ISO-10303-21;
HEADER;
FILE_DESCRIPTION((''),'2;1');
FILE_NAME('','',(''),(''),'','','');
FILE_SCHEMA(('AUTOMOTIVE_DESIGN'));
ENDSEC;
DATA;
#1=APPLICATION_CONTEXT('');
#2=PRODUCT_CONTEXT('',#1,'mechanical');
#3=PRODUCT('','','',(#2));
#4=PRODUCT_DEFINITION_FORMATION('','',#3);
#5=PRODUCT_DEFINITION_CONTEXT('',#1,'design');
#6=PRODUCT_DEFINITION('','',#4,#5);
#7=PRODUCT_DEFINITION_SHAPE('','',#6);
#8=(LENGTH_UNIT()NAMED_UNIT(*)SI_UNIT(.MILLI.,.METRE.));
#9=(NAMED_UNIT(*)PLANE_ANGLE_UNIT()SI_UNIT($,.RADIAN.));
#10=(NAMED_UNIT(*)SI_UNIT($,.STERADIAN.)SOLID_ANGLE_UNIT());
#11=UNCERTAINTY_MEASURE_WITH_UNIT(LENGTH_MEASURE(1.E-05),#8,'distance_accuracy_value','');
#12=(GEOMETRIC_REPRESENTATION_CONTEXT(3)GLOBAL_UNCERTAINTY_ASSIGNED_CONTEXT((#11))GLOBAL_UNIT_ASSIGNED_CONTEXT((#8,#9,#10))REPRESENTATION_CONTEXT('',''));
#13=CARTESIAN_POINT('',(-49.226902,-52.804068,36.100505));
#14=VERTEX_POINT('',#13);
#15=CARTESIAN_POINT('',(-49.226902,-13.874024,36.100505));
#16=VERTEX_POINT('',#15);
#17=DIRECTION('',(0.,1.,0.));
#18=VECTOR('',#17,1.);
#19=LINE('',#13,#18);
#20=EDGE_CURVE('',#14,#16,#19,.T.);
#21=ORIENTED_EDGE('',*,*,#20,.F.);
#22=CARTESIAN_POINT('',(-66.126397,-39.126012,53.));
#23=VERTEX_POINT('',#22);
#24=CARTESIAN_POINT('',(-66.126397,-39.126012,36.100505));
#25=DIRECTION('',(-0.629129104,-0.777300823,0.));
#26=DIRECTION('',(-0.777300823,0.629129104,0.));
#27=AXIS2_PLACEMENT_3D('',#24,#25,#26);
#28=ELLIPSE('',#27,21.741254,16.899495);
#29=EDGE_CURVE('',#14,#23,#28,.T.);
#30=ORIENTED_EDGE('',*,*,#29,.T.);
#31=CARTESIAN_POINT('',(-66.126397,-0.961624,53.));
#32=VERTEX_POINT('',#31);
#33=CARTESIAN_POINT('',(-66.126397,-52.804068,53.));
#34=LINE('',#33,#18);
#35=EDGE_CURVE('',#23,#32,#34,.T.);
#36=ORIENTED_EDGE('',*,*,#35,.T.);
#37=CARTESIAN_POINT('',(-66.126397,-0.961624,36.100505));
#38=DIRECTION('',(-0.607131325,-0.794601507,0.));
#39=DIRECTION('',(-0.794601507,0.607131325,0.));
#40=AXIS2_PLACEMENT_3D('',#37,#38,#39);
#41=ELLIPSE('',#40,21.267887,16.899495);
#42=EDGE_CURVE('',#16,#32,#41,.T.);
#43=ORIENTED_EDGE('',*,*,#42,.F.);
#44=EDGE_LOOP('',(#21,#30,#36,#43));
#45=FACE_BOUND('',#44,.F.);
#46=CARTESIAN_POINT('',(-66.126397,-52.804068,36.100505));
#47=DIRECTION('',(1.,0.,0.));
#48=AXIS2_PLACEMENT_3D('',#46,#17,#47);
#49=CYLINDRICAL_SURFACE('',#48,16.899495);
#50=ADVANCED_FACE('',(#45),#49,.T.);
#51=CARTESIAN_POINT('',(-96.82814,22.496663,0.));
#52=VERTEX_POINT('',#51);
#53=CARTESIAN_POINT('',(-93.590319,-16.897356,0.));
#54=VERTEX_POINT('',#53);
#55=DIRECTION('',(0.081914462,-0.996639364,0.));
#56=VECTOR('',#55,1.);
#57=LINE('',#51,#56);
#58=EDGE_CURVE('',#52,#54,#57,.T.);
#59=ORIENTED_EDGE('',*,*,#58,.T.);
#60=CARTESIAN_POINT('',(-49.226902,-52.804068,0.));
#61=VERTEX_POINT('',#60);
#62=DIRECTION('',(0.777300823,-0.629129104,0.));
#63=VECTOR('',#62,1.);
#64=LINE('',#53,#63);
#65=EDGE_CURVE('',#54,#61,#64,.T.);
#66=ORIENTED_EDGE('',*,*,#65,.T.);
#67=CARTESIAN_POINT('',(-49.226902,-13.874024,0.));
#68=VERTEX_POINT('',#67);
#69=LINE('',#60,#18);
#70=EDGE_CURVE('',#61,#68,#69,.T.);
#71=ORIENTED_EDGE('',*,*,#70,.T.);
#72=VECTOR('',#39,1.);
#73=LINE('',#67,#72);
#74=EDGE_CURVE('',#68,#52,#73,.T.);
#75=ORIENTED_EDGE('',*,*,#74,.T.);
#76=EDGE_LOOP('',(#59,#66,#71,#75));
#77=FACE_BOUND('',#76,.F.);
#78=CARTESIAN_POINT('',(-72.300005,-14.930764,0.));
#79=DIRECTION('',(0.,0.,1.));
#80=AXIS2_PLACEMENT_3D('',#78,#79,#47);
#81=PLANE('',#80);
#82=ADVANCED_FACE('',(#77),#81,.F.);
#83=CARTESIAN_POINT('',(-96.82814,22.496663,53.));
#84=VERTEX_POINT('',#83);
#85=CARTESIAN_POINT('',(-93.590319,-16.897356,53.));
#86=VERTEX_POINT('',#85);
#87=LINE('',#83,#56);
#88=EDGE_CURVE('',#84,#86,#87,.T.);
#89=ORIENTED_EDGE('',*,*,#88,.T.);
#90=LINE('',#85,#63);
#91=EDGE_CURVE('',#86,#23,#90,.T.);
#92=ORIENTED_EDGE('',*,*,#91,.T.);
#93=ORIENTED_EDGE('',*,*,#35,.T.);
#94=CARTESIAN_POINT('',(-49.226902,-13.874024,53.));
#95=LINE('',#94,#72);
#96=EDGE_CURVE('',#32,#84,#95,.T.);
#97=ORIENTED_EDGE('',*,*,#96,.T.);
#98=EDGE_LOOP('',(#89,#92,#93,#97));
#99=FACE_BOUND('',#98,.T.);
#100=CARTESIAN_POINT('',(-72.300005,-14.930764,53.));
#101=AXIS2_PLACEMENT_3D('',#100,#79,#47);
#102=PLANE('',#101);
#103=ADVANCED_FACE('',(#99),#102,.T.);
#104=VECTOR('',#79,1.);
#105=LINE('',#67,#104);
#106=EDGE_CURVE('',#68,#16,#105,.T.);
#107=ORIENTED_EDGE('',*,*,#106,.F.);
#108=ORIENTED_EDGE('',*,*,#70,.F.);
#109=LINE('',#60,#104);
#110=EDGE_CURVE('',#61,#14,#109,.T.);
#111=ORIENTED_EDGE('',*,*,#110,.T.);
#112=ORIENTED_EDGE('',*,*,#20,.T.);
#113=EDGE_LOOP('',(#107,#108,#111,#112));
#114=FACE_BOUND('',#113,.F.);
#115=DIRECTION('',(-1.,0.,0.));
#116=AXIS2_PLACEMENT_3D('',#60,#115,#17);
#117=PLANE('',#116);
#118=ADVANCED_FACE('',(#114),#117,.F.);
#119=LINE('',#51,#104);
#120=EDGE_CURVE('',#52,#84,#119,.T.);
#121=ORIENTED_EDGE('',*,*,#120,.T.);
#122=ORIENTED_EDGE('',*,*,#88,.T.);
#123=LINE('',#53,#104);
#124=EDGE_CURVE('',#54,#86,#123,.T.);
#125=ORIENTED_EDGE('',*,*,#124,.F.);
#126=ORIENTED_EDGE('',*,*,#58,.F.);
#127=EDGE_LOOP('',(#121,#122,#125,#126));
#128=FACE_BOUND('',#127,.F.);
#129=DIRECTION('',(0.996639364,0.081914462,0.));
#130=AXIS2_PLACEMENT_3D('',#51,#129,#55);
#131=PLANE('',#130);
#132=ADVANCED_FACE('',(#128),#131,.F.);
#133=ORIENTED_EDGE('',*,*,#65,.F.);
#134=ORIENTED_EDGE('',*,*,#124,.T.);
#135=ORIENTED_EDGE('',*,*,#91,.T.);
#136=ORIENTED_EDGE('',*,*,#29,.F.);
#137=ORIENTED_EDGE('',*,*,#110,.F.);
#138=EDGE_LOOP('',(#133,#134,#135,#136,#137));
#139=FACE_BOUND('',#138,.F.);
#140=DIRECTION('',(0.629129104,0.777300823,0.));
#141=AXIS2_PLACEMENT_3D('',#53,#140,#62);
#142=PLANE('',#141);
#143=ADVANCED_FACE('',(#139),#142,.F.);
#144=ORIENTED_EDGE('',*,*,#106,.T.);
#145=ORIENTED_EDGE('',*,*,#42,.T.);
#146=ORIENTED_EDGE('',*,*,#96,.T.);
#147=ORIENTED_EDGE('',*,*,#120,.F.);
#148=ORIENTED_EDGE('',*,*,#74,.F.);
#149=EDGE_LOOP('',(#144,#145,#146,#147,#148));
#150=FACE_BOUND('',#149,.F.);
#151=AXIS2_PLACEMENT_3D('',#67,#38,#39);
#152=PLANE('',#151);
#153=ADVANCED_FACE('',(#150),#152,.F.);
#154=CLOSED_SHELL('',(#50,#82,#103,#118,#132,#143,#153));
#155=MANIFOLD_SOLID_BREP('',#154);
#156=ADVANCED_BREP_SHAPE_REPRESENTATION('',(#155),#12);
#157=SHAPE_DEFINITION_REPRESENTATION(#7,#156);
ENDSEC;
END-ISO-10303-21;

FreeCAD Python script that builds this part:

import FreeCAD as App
import Part
import Sketcher

V = App.Vector
Q = App.Units.Quantity


def edges_at(feature, points):
    """Names of the edges that pass closest to the given points."""
    edges = feature.Shape.Edges
    near = lambda p: min(range(len(edges)), key=lambda i: edges[i].distToShape(Part.Vertex(*p))[0])
    return sorted({f"Edge{near(p) + 1}" for p in points})


def add_polygon(sketch, points):
    """Adds a closed chain of lines whose ends are joined by coincident constraints."""
    first, n = sketch.GeometryCount, len(points)
    for a, b in zip(points, points[1:] + points[:1]):
        sketch.addGeometry(Part.LineSegment(App.Vector(*a, 0), App.Vector(*b, 0)), False)
    for i in range(n):
        sketch.addConstraint(Sketcher.Constraint("Coincident", first + i, 2, first + (i + 1) % n, 1))

doc = App.newDocument("Part")
body = doc.addObject("PartDesign::Body", "Body")

# Sketch on XY plane
sketch1 = body.newObject("Sketcher::SketchObject", "Sketch")
sketch1.AttachmentSupport = (doc.getObject("XY_Plane"), [""])
sketch1.MapMode = "FlatFace"
add_polygon(sketch1, [(-96.82814, 22.496663), (-93.590319, -16.897356), (-49.226902, -52.804068), (-49.226902, -13.874024)])  # lines 0-3
sketch1.addConstraint(Sketcher.Constraint("Vertical", 2))
sketch1.addConstraint(Sketcher.Constraint("Distance", 3, Q("59.905799 mm")))
sketch1.addConstraint(Sketcher.Constraint("Distance", 1, Q("57.073678 mm")))
sketch1.addConstraint(Sketcher.Constraint("DistanceY", 2, 1, 2, 2, Q("38.930044 mm")))
sketch1.addConstraint(Sketcher.Constraint("DistanceX", 0, 2, -1, 1, Q("93.590319 mm")))
sketch1.addConstraint(Sketcher.Constraint("DistanceX", 3, 2, -1, 1, Q("96.82814 mm")))
sketch1.addConstraint(Sketcher.Constraint("DistanceY", 0, 2, 2, 2, Q("3.023332 mm")))
sketch1.addConstraint(Sketcher.Constraint("DistanceY", 0, 2, -1, 1, Q("16.897356 mm")))
pad1 = body.newObject("PartDesign::Pad", "Pad")
pad1.Profile = sketch1
pad1.Length = 53
doc.recompute()

fillet = body.newObject("PartDesign::Fillet", "Fillet")
fillet.Base = (pad1, edges_at(pad1, [(-49.227, -33.339, 53)]))
fillet.Radius = 16.899495

doc.recompute()
